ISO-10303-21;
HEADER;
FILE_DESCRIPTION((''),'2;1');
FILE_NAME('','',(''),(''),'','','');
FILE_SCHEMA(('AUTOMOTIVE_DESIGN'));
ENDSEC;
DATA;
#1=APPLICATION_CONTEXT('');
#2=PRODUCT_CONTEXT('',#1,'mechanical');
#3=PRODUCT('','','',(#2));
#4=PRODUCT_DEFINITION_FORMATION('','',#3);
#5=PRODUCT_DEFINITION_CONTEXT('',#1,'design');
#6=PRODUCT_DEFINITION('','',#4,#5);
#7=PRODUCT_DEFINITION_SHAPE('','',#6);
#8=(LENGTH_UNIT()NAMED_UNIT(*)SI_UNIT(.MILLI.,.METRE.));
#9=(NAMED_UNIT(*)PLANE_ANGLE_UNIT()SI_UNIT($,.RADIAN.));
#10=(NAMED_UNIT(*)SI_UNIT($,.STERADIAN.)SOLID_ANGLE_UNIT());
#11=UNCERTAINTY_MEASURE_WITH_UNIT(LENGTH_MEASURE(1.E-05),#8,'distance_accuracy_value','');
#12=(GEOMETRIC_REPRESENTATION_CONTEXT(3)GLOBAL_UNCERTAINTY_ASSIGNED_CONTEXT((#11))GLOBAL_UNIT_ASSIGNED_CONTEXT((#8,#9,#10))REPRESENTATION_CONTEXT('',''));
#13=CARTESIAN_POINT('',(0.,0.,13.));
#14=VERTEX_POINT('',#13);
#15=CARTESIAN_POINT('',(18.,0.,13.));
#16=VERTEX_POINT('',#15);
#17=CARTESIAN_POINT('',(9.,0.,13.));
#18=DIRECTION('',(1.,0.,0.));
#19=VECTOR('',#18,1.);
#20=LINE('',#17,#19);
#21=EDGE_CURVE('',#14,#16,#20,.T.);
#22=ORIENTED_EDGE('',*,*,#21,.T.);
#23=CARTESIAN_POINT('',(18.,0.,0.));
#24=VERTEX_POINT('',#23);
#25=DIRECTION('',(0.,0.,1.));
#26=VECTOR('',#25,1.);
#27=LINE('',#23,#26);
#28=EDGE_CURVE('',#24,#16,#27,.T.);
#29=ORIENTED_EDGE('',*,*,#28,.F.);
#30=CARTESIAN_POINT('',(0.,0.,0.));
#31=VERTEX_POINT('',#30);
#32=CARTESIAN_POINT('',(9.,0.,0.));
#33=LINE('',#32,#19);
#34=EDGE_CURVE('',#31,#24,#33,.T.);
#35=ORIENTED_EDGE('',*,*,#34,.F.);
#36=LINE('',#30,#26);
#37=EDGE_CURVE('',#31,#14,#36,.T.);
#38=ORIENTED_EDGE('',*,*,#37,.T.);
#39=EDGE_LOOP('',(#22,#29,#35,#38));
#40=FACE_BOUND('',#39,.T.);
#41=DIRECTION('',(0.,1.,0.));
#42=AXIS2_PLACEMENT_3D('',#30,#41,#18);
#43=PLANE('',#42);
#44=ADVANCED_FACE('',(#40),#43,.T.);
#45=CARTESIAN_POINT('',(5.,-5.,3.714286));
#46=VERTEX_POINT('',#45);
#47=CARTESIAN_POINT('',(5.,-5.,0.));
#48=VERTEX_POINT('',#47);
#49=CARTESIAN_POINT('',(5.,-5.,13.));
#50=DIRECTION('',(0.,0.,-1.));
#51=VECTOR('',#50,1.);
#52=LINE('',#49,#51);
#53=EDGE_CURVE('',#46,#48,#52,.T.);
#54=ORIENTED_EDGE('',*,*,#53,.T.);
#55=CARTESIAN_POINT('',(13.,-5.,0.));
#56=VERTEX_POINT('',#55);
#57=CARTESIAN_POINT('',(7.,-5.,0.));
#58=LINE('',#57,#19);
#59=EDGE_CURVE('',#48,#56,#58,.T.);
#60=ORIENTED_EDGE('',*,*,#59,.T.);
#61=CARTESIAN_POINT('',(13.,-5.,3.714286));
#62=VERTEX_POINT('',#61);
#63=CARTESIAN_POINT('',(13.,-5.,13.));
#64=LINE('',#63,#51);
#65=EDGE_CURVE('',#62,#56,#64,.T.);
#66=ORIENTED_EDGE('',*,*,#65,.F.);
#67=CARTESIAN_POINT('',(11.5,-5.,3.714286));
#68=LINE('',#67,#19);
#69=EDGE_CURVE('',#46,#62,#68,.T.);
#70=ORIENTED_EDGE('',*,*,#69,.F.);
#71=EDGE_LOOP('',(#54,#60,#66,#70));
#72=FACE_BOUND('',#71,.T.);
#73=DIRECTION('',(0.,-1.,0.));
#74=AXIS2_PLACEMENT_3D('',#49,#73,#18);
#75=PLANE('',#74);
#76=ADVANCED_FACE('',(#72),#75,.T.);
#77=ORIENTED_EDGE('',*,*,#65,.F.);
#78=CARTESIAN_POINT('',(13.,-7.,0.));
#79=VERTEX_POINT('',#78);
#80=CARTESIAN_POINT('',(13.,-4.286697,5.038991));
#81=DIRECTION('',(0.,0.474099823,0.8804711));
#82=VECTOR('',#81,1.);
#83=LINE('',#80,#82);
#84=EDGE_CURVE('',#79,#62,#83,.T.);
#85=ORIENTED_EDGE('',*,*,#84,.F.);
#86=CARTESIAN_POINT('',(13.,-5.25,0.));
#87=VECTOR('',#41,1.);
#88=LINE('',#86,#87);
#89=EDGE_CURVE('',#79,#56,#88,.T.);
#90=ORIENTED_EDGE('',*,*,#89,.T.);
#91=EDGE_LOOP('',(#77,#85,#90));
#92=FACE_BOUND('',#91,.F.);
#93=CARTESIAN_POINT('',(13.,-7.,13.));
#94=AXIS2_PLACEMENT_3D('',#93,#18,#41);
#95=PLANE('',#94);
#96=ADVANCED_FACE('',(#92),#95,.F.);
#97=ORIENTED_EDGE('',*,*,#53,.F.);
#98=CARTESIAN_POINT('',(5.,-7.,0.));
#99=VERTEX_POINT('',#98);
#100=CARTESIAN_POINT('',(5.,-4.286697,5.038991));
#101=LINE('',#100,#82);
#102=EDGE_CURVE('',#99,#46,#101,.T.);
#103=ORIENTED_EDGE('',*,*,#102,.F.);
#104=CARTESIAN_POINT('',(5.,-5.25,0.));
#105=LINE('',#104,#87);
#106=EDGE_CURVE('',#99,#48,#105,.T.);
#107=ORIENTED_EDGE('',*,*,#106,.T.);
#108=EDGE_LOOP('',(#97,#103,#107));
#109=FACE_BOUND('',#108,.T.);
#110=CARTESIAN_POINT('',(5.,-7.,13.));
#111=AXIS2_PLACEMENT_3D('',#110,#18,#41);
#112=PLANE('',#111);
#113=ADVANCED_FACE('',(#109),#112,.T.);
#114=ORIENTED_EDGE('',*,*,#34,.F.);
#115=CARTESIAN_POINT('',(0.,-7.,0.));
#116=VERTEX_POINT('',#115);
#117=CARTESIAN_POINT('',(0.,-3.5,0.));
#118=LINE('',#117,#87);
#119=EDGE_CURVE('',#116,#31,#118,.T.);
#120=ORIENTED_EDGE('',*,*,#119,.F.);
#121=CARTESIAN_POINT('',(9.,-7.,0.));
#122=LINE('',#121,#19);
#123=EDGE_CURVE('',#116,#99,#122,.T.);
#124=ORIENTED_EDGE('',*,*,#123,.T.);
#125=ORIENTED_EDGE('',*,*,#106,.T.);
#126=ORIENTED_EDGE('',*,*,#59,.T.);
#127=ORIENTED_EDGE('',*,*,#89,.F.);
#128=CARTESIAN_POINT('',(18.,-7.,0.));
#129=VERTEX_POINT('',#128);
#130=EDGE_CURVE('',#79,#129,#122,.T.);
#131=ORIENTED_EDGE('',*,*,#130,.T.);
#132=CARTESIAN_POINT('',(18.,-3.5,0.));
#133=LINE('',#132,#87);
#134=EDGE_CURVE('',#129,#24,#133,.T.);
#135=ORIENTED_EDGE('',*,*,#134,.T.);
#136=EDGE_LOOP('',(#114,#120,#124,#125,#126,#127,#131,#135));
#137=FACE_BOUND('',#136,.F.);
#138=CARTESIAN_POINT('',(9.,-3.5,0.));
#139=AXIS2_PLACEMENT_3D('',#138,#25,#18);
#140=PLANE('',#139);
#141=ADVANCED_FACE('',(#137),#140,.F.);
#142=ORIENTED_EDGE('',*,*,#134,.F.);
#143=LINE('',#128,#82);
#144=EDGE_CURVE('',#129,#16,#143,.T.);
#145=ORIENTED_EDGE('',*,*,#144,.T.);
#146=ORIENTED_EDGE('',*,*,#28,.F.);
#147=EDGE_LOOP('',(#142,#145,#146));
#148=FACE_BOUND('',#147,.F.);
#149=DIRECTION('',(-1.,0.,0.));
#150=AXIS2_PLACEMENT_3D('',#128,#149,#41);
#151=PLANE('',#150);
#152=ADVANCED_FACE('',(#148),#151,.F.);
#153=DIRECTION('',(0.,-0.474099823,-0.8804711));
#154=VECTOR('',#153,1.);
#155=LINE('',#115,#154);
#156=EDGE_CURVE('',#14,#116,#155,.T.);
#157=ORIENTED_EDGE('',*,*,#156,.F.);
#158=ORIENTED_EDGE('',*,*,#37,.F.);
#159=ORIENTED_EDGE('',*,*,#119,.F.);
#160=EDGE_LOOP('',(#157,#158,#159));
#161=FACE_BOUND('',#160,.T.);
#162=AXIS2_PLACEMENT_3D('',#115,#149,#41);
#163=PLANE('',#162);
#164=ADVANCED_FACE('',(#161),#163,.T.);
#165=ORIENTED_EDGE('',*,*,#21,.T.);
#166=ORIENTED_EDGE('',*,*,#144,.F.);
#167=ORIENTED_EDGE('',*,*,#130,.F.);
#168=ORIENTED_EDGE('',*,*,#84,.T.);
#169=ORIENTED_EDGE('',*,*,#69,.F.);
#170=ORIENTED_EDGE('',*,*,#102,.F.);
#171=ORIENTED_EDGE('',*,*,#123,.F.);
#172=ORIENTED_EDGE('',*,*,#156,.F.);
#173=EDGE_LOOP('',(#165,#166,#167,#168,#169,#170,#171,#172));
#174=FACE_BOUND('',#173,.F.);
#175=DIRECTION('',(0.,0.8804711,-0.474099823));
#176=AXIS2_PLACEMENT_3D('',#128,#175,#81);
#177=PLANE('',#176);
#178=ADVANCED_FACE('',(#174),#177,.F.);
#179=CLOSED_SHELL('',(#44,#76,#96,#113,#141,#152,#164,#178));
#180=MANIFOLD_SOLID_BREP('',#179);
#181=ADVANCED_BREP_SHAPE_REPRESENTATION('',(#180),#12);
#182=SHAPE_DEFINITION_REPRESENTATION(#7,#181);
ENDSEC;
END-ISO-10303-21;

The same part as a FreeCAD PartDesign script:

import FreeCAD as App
import Part
import Sketcher

V = App.Vector


def add_polygon(sketch, points):
    """Adds a closed chain of lines whose ends are joined by coincident constraints."""
    first, n = sketch.GeometryCount, len(points)
    for a, b in zip(points, points[1:] + points[:1]):
        sketch.addGeometry(Part.LineSegment(App.Vector(*a, 0), App.Vector(*b, 0)), False)
    for i in range(n):
        sketch.addConstraint(Sketcher.Constraint("Coincident", first + i, 2, first + (i + 1) % n, 1))

doc = App.newDocument("Part")
body = doc.addObject("PartDesign::Body", "Body")

# Sketch on XY plane
sketch1 = body.newObject("Sketcher::SketchObject", "Sketch")
sketch1.AttachmentSupport = (doc.getObject("XY_Plane"), [""])
sketch1.MapMode = "FlatFace"
add_polygon(sketch1, [(0, 0), (0, -7), (18, -7), (18, 0)])  # lines 0-3
sketch1.addConstraint(Sketcher.Constraint("Vertical", 0))
sketch1.addConstraint(Sketcher.Constraint("Horizontal", 1))
sketch1.addConstraint(Sketcher.Constraint("Vertical", 2))
sketch1.addConstraint(Sketcher.Constraint("Horizontal", 3))
sketch1.addConstraint(Sketcher.Constraint("Coincident", 3, 2, -1, 1))
sketch1.addConstraint(Sketcher.Constraint("DistanceX", 1, 1, 1, 2, 18.0))
sketch1.addConstraint(Sketcher.Constraint("DistanceY", 0, 2, 0, 1, 7.0))
pad1 = body.newObject("PartDesign::Pad", "Pad")
pad1.Profile = sketch1
pad1.Length = 13

# Sketch on XY plane
sketch2 = body.newObject("Sketcher::SketchObject", "Sketch001")
sketch2.AttachmentSupport = (doc.getObject("XY_Plane"), [""])
sketch2.MapMode = "FlatFace"
sketch2.AttachmentOffset = App.Placement(V(0, 0, 13), App.Rotation())
add_polygon(sketch2, [(5, -5), (5, -7), (13, -7), (13, -5)])  # lines 0-3
sketch2.addConstraint(Sketcher.Constraint("Vertical", 0))
sketch2.addConstraint(Sketcher.Constraint("Horizontal", 1))
sketch2.addConstraint(Sketcher.Constraint("Vertical", 2))
sketch2.addConstraint(Sketcher.Constraint("Horizontal", 3))
sketch2.addConstraint(Sketcher.Constraint("DistanceX", 1, 1, 1, 2, 8.0))
sketch2.addConstraint(Sketcher.Constraint("DistanceY", 0, 2, 0, 1, 2.0))
sketch2.addConstraint(Sketcher.Constraint("DistanceX", -1, 1, 0, 2, 5.0))
sketch2.addConstraint(Sketcher.Constraint("DistanceY", 0, 2, -1, 1, 7.0))
pocket1 = body.newObject("PartDesign::Pocket", "Pocket")
pocket1.Profile = sketch2
pocket1.Type = "ThroughAll"

# Sketch on YZ plane
sketch3 = body.newObject("Sketcher::SketchObject", "Sketch002")
sketch3.AttachmentSupport = (doc.getObject("YZ_Plane"), [""])
sketch3.MapMode = "FlatFace"
sketch3.AttachmentOffset = App.Placement(V(0, 0, 18), App.Rotation())
add_polygon(sketch3, [(-7, 0), (0, 13), (-7, 13)])  # lines 0-2
sketch3.addConstraint(Sketcher.Constraint("Horizontal", 1))
sketch3.addConstraint(Sketcher.Constraint("Vertical", 2))
sketch3.addConstraint(Sketcher.Constraint("PointOnObject", 0, 2, -2))
sketch3.addConstraint(Sketcher.Constraint("PointOnObject", 2, 2, -1))
sketch3.addConstraint(Sketcher.Constraint("DistanceX", 1, 2, 1, 1, 7.0))
sketch3.addConstraint(Sketcher.Constraint("DistanceY", 2, 2, 2, 1, 13.0))
pocket2 = body.newObject("PartDesign::Pocket", "Pocket001")
pocket2.Profile = sketch3
pocket2.Type = "ThroughAll"

doc.recompute()
